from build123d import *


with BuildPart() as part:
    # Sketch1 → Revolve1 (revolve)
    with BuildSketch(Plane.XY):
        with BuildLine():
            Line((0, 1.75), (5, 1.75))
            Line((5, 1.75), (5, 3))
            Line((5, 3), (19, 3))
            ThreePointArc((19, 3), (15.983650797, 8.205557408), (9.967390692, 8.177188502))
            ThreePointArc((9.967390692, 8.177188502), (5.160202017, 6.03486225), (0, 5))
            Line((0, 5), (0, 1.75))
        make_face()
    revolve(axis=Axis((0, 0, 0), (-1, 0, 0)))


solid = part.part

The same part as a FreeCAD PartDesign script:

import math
import FreeCAD as App
import Part
import Sketcher
Q = App.Units.Quantity

doc = App.newDocument("Part")
body = doc.addObject("PartDesign::Body", "Body")

# Sketch on XY plane
sketch1 = body.newObject("Sketcher::SketchObject", "Sketch")
sketch1.AttachmentSupport = (doc.getObject("XY_Plane"), [""])
sketch1.MapMode = "FlatFace"
sketch1.addGeometry([
    Part.LineSegment(App.Vector(0, 1.8, 0), App.Vector(5, 1.8, 0)),  # 0
    Part.LineSegment(App.Vector(5, 1.8, 0), App.Vector(5, 3, 0)),  # 1
    Part.LineSegment(App.Vector(5, 3, 0), App.Vector(19, 3, 0)),  # 2
    Part.ArcOfCircle(Part.Circle(App.Vector(13, 3, 0), App.Vector(0, 0, 1), 6), math.radians(0), math.radians(120)),  # 3
    Part.ArcOfCircle(Part.Circle(App.Vector(-2.1, 28.7, 0), App.Vector(0, 0, 1), 23.8), math.radians(-85), math.radians(-60)),  # 4
    Part.LineSegment(App.Vector(0, 5, 0), App.Vector(0, 1.8, 0)),  # 5
], False)
sketch1.addConstraint([
    Sketcher.Constraint("Coincident", 0, 2, 1, 1),
    Sketcher.Constraint("Coincident", 1, 2, 2, 1),
    Sketcher.Constraint("Coincident", 2, 2, 3, 1),
    Sketcher.Constraint("Tangent", 3, 2, 4, 2),
    Sketcher.Constraint("Coincident", 4, 1, 5, 1),
    Sketcher.Constraint("Coincident", 5, 2, 0, 1),
    Sketcher.Constraint("Horizontal", 0),
    Sketcher.Constraint("Vertical", 1),
    Sketcher.Constraint("Horizontal", 2),
    Sketcher.Constraint("Vertical", 5),
    Sketcher.Constraint("PointOnObject", 4, 1, -2),
    Sketcher.Constraint("Horizontal", 3, 3, 1, 2),
    Sketcher.Constraint("Radius", 3, Q("6 mm")),
    Sketcher.Constraint("DistanceX", 0, 1, 0, 2, Q("5 mm")),
    Sketcher.Constraint("DistanceX", 2, 1, 2, 2, Q("14 mm")),
    Sketcher.Constraint("DistanceY", -1, 1, 3, 3, Q("3 mm")),
    Sketcher.Constraint("DistanceY", -1, 1, 4, 1, Q("5 mm")),
    Sketcher.Constraint("DistanceY", 1, 1, 1, 2, Q("1.25 mm")),
    Sketcher.Constraint("Radius", 4, Q("23.829519 mm")),
])
revolution = body.newObject("PartDesign::Revolution", "Revolution")
revolution.Profile = sketch1
revolution.ReferenceAxis = (sketch1, ["H_Axis"])
revolution.Angle = 360

doc.recompute()
